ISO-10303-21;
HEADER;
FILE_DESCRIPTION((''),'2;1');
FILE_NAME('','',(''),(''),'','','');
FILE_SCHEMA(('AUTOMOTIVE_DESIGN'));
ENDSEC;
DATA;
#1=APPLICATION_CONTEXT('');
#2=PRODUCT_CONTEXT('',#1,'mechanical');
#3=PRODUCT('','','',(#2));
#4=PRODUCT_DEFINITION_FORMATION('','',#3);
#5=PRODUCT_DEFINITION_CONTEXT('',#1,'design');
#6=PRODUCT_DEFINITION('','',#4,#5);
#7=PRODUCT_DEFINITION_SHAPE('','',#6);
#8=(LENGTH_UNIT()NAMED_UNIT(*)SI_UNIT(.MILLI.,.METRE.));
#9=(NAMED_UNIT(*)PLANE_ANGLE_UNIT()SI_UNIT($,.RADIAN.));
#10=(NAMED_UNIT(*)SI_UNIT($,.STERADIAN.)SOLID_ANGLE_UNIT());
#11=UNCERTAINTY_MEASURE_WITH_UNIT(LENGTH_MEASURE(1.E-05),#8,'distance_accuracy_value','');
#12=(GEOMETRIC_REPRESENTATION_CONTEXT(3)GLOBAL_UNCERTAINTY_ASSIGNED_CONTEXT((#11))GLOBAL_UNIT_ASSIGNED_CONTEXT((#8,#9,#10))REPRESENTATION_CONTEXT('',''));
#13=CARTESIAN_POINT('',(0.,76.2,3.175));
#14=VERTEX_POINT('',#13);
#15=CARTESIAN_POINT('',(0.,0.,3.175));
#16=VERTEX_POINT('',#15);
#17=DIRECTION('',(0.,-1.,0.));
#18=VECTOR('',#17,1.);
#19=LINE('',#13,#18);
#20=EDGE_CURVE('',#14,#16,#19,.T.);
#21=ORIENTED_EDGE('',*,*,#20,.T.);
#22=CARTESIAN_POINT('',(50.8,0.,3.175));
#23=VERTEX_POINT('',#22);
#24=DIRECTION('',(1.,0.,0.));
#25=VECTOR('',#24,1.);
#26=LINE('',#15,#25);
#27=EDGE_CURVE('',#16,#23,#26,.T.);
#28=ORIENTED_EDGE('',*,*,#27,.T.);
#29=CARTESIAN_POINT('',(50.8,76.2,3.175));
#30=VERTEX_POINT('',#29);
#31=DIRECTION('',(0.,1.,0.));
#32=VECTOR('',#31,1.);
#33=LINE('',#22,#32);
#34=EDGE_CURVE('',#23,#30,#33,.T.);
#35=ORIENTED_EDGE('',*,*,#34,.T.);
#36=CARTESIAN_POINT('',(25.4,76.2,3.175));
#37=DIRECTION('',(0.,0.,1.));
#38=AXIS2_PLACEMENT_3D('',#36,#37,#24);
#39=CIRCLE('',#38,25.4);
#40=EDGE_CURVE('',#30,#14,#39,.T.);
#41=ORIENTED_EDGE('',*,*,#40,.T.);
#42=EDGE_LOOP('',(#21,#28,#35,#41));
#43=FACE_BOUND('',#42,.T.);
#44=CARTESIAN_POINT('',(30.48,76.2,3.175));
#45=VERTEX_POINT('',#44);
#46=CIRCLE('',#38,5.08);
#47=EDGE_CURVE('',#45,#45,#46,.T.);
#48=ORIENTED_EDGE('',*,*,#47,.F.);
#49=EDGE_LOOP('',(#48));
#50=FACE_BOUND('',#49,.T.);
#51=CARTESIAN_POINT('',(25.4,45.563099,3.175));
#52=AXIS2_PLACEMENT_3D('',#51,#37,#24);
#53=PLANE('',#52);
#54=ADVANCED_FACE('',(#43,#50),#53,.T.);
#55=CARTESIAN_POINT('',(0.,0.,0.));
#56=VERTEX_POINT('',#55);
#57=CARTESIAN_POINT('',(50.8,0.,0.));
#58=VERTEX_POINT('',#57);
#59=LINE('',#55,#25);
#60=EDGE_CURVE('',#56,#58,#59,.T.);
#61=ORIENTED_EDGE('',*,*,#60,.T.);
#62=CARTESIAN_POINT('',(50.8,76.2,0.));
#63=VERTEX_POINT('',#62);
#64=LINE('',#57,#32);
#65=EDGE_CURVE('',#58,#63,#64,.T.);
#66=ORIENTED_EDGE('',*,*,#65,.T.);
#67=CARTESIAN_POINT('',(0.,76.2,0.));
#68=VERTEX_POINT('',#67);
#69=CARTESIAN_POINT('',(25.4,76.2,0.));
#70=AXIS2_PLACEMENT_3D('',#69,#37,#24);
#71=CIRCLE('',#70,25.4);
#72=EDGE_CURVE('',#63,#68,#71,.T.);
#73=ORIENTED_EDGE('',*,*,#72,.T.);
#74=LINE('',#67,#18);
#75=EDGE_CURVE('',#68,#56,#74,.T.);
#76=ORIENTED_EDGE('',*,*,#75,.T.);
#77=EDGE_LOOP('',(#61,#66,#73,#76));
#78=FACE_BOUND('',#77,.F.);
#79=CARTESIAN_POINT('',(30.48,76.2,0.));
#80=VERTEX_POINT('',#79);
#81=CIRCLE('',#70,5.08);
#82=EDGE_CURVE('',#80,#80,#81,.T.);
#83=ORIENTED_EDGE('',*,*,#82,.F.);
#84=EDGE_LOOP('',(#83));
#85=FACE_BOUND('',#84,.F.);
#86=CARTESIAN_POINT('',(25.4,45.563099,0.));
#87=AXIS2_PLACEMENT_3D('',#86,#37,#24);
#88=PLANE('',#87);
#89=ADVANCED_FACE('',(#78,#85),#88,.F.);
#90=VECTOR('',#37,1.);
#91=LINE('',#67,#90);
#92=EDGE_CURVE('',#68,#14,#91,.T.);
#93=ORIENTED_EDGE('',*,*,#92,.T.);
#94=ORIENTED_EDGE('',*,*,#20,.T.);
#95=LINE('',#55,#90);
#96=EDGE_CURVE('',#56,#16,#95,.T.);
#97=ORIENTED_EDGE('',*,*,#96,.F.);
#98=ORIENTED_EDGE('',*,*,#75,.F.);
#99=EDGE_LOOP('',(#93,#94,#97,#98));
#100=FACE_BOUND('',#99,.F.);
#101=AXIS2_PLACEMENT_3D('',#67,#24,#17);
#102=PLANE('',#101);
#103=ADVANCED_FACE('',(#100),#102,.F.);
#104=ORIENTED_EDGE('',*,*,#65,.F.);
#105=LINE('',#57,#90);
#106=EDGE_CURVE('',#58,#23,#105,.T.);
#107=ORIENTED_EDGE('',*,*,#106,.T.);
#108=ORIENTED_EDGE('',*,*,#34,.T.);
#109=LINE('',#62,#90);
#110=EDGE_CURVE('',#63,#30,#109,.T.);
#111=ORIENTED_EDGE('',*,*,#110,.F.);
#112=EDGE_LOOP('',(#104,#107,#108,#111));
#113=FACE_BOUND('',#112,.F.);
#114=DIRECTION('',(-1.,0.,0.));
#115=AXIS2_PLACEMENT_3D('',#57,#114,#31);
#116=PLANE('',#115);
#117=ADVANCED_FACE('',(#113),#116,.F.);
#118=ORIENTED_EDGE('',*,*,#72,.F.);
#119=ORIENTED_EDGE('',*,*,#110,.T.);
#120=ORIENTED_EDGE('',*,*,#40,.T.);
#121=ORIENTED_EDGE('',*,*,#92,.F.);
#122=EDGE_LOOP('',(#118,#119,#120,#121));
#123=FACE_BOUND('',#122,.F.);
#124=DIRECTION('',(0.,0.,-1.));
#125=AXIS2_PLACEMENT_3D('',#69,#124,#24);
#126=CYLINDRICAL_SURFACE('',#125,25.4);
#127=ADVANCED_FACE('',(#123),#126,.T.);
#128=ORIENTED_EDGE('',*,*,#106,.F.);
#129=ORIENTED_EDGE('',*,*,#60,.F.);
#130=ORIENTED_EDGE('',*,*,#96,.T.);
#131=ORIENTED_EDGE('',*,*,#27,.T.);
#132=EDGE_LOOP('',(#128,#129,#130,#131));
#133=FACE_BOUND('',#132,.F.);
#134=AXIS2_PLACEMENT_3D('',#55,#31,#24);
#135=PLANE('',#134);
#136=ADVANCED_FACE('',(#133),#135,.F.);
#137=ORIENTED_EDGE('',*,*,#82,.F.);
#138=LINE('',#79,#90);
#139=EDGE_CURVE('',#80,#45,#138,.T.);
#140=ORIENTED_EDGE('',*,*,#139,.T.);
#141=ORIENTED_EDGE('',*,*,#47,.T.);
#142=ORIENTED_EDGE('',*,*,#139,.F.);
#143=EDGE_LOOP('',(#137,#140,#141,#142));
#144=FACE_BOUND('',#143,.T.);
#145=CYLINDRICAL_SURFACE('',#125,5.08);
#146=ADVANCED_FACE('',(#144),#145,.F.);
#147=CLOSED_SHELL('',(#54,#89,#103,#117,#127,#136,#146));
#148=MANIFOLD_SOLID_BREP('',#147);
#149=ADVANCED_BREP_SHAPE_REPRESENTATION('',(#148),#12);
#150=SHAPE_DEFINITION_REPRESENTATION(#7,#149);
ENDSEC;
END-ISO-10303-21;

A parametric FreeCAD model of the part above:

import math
import FreeCAD as App
import Part
import Sketcher
from FreeCAD import Vector
Q = App.Units.Quantity

doc = App.newDocument("Part")
params = doc.addObject("Spreadsheet::Sheet", "Params")
for row, (alias, value) in enumerate([
    ("sketch1_radius", "1 in"),
    ("sketch1_diameter", "0.4 in"),
    ("sketch1_height", "3 in"),
    ("pad1_length", "0.125 in"),
], start=1):
    params.set(f"A{row}", alias)
    params.set(f"B{row}", "=" + value)
    params.setAlias(f"B{row}", alias)

body = doc.addObject("PartDesign::Body", "Body")

# Sketch on XY plane
sketch1 = doc.addObject("Sketcher::SketchObject", "Sketch")
body.addObject(sketch1)
sketch1.AttachmentSupport = (doc.XY_Plane, [""])
sketch1.MapMode = "FlatFace"
sketch1.addGeometry(Part.LineSegment(Vector(0, 76, 0), Vector(0, 0, 0)), False)
sketch1.addGeometry(Part.LineSegment(Vector(0, 0, 0), Vector(51, 0, 0)), False)
sketch1.addGeometry(Part.LineSegment(Vector(51, 0, 0), Vector(51, 76, 0)), False)
sketch1.addGeometry(Part.ArcOfCircle(Part.Circle(Vector(25, 76, 0), Vector(0, 0, 1), 25), math.radians(0), math.radians(180)), False)
sketch1.addGeometry(Part.Circle(Vector(25, 76, 0), Vector(0, 0, 1), 5), False)
sketch1.addConstraint(Sketcher.Constraint("Coincident", 0, 2, 1, 1))
sketch1.addConstraint(Sketcher.Constraint("Coincident", 1, 2, 2, 1))
sketch1.addConstraint(Sketcher.Constraint("Tangent", 2, 2, 3, 1))
sketch1.addConstraint(Sketcher.Constraint("Tangent", 3, 2, 0, 1))
sketch1.addConstraint(Sketcher.Constraint("Vertical", 0))
sketch1.addConstraint(Sketcher.Constraint("Horizontal", 1))
sketch1.addConstraint(Sketcher.Constraint("Vertical", 2))
sketch1.addConstraint(Sketcher.Constraint("Coincident", 0, 2, -1, 1))
sketch1.addConstraint(Sketcher.Constraint("Coincident", 4, 3, 3, 3))
sketch1.addConstraint(Sketcher.Constraint("Radius", 3, Q("1 in")))
sketch1.addConstraint(Sketcher.Constraint("Diameter", 4, Q("0.4 in")))
sketch1.addConstraint(Sketcher.Constraint("DistanceY", 0, 2, 0, 1, Q("3 in")))
sketch1.setExpression("Constraints[9]", "Params.sketch1_radius")
sketch1.setExpression("Constraints[10]", "Params.sketch1_diameter")
sketch1.setExpression("Constraints[11]", "Params.sketch1_height")
pad1 = doc.addObject("PartDesign::Pad", "Pad")
body.addObject(pad1)
pad1.Profile = sketch1
pad1.setExpression("Length", "Params.pad1_length")

doc.recompute()
